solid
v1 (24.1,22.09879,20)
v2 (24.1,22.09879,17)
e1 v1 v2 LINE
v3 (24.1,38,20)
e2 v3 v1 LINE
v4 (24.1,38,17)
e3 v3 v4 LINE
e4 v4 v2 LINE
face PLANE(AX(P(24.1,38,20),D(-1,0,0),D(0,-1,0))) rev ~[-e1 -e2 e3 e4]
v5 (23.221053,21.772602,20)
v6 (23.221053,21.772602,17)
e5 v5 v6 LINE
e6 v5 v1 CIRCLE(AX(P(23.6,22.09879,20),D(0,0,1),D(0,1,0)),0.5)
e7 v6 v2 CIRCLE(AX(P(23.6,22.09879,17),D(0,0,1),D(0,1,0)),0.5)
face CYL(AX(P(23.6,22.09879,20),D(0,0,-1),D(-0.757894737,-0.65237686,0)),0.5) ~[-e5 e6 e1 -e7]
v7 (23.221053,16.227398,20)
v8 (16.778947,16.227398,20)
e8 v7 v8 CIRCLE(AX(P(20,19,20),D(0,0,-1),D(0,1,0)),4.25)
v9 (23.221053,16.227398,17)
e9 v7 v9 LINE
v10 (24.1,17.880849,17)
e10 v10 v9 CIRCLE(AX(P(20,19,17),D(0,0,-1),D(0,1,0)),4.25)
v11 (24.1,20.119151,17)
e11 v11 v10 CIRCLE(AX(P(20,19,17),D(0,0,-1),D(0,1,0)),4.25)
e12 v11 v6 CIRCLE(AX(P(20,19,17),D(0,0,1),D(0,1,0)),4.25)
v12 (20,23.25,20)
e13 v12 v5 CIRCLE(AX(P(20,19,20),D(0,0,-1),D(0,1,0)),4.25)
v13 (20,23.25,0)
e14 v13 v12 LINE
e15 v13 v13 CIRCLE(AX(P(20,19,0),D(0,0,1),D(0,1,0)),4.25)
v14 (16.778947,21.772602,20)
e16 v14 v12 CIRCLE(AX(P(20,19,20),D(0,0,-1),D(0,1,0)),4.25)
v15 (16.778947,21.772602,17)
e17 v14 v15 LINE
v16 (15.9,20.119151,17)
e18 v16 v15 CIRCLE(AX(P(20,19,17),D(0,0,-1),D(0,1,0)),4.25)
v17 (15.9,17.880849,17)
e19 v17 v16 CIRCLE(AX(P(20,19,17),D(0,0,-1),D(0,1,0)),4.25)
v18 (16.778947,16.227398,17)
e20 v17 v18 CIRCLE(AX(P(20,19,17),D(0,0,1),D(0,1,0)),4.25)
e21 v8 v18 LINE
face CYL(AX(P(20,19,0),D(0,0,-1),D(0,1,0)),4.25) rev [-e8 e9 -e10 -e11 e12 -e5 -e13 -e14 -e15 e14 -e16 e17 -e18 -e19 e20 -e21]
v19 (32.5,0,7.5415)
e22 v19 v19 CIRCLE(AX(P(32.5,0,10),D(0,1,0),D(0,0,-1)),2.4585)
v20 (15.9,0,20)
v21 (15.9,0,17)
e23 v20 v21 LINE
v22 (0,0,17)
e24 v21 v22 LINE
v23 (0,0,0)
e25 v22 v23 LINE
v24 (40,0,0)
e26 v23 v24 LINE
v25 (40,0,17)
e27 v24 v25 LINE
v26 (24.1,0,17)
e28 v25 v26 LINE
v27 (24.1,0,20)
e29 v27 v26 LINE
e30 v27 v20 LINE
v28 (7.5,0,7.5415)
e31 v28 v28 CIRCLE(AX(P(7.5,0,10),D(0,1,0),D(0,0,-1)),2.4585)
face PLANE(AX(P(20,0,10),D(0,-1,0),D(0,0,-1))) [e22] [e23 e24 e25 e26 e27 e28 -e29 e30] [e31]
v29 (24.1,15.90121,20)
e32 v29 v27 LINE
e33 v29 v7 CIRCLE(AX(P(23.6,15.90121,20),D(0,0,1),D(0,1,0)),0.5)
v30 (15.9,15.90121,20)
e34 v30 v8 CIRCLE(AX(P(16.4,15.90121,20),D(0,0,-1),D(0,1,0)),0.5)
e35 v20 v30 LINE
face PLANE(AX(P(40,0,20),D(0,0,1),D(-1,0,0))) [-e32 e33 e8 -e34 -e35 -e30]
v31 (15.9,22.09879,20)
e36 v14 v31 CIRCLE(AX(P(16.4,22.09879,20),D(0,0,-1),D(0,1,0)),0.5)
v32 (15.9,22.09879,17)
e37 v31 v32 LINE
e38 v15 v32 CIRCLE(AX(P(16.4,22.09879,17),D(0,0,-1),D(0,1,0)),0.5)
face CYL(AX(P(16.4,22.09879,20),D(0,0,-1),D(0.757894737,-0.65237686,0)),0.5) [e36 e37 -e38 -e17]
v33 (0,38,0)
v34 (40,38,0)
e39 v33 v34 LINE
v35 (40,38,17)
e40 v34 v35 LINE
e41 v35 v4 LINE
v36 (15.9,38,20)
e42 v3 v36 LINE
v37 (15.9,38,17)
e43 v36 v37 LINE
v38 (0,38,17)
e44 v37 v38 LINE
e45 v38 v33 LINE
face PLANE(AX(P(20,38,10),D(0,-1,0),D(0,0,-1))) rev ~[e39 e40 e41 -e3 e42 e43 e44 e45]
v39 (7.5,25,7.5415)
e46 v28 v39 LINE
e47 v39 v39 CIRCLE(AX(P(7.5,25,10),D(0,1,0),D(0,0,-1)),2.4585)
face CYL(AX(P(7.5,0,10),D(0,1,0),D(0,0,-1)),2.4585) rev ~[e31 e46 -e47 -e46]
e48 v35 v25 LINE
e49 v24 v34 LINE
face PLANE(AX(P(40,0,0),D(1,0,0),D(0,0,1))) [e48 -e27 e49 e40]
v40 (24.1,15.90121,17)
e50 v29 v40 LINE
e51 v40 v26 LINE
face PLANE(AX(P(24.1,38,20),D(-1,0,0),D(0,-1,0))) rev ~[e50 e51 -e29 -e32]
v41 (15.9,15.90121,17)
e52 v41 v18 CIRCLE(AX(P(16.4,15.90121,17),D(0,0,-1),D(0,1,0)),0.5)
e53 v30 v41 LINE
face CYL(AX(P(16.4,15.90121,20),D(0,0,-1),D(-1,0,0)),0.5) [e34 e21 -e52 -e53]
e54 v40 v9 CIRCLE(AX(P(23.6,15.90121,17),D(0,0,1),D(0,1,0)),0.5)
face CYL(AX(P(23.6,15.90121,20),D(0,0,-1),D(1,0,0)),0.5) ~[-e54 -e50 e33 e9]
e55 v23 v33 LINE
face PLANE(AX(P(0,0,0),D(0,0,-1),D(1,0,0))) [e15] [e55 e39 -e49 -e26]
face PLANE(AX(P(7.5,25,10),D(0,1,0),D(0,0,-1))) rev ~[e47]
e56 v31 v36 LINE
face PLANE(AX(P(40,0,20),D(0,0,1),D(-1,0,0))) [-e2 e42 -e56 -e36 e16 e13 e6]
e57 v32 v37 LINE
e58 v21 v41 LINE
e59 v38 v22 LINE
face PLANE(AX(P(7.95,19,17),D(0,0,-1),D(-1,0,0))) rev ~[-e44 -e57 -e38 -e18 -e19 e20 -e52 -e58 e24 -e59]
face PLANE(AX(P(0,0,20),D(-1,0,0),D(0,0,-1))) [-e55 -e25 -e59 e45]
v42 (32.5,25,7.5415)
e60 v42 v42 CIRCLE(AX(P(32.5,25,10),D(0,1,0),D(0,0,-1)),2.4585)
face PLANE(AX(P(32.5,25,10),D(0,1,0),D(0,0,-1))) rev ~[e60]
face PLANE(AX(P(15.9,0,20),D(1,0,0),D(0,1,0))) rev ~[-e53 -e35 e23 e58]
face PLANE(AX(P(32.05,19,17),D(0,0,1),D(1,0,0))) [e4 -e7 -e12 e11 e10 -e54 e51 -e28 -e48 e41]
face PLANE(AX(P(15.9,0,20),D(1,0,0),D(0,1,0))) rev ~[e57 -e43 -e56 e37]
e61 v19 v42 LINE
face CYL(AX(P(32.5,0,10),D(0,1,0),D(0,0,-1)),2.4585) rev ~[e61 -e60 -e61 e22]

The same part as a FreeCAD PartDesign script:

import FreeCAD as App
import Part
import Sketcher
Q = App.Units.Quantity


def edges_at(feature, points):
    """Names of the edges that pass closest to the given points."""
    edges = feature.Shape.Edges
    near = lambda p: min(range(len(edges)), key=lambda i: edges[i].distToShape(Part.Vertex(*p))[0])
    return sorted({f"Edge{near(p) + 1}" for p in points})

doc = App.newDocument("Part")
body = doc.addObject("PartDesign::Body", "Body")

# Sketch on XZ plane
sketch1 = body.newObject("Sketcher::SketchObject", "Sketch")
sketch1.AttachmentSupport = (doc.getObject("XZ_Plane"), [""])
sketch1.MapMode = "FlatFace"
sketch1.addGeometry(Part.LineSegment(App.Vector(0, 0, 0), App.Vector(40, 0, 0)), False)
sketch1.addGeometry(Part.LineSegment(App.Vector(40, 0, 0), App.Vector(40, 20, 0)), False)
sketch1.addGeometry(Part.LineSegment(App.Vector(40, 20, 0), App.Vector(0, 20, 0)), False)
sketch1.addGeometry(Part.LineSegment(App.Vector(0, 20, 0), App.Vector(0, 0, 0)), False)
sketch1.addConstraint(Sketcher.Constraint("Coincident", 0, 2, 1, 1))
sketch1.addConstraint(Sketcher.Constraint("Coincident", 1, 2, 2, 1))
sketch1.addConstraint(Sketcher.Constraint("Coincident", 2, 2, 3, 1))
sketch1.addConstraint(Sketcher.Constraint("Coincident", 3, 2, 0, 1))
sketch1.addConstraint(Sketcher.Constraint("Horizontal", 0))
sketch1.addConstraint(Sketcher.Constraint("Vertical", 1))
sketch1.addConstraint(Sketcher.Constraint("Horizontal", 2))
sketch1.addConstraint(Sketcher.Constraint("Vertical", 3))
sketch1.addConstraint(Sketcher.Constraint("Coincident", 3, 2, -1, 1))
sketch1.addConstraint(Sketcher.Constraint("DistanceX", 0, 1, 0, 2, Q("40 mm")))
sketch1.addConstraint(Sketcher.Constraint("DistanceY", 1, 1, 1, 2, Q("20 mm")))
pad1 = body.newObject("PartDesign::Pad", "Pad")
pad1.Profile = sketch1
pad1.Length = 38
pad1.Reversed = True

# Sketch on XZ plane
sketch2 = body.newObject("Sketcher::SketchObject", "Sketch001")
sketch2.AttachmentSupport = (doc.getObject("XZ_Plane"), [""])
sketch2.MapMode = "FlatFace"
sketch2.addGeometry(Part.Circle(App.Vector(7.5, 10, 0), App.Vector(0, 0, 1), 2.5), False)
sketch2.addConstraint(Sketcher.Constraint("Diameter", 0, Q("4.917 mm")))
sketch2.addConstraint(Sketcher.Constraint("DistanceY", -1, 1, 0, 3, Q("10 mm")))
sketch2.addConstraint(Sketcher.Constraint("DistanceX", -1, 1, 0, 3, Q("7.5 mm")))
doc.recompute()
hole = body.newObject("PartDesign::Hole", "Hole")
hole.Profile = sketch2
hole.ThreadType = "None"
hole.Diameter = 4.917
hole.DepthType = "Dimension"
hole.Depth = 25
hole.DrillPoint = "Flat"

# Sketch on XZ plane
sketch3 = body.newObject("Sketcher::SketchObject", "Sketch002")
sketch3.AttachmentSupport = (doc.getObject("XZ_Plane"), [""])
sketch3.MapMode = "FlatFace"
sketch3.addGeometry(Part.Circle(App.Vector(32.5, 10, 0), App.Vector(0, 0, 1), 2.5), False)
sketch3.addConstraint(Sketcher.Constraint("Diameter", 0, Q("4.917 mm")))
sketch3.addConstraint(Sketcher.Constraint("DistanceY", -1, 1, 0, 3, Q("10 mm")))
sketch3.addConstraint(Sketcher.Constraint("DistanceX", -1, 1, 0, 3, Q("32.5 mm")))
doc.recompute()
hole2 = body.newObject("PartDesign::Hole", "Hole001")
hole2.Profile = sketch3
hole2.ThreadType = "None"
hole2.Diameter = 4.917
hole2.DepthType = "Dimension"
hole2.Depth = 25
hole2.DrillPoint = "Flat"

# Sketch on XY plane
sketch4 = body.newObject("Sketcher::SketchObject", "Sketch003")
sketch4.AttachmentSupport = (doc.getObject("XY_Plane"), [""])
sketch4.MapMode = "FlatFace"
sketch4.AttachmentOffset = App.Placement(App.Vector(0, 0, 20), App.Rotation())
sketch4.addGeometry(Part.LineSegment(App.Vector(0, 0, 0), App.Vector(16, 0, 0)), False)
sketch4.addGeometry(Part.LineSegment(App.Vector(16, 0, 0), App.Vector(16, 38, 0)), False)
sketch4.addGeometry(Part.LineSegment(App.Vector(16, 38, 0), App.Vector(0, 38, 0)), False)
sketch4.addGeometry(Part.LineSegment(App.Vector(0, 38, 0), App.Vector(0, 0, 0)), False)
sketch4.addGeometry(Part.LineSegment(App.Vector(40, 0, 0), App.Vector(40, 38, 0)), False)
sketch4.addGeometry(Part.LineSegment(App.Vector(40, 38, 0), App.Vector(24, 38, 0)), False)
sketch4.addGeometry(Part.LineSegment(App.Vector(24, 38, 0), App.Vector(24, 0, 0)), False)
sketch4.addGeometry(Part.LineSegment(App.Vector(24, 0, 0), App.Vector(40, 0, 0)), False)
sketch4.addConstraint(Sketcher.Constraint("Coincident", 0, 2, 1, 1))
sketch4.addConstraint(Sketcher.Constraint("Coincident", 1, 2, 2, 1))
sketch4.addConstraint(Sketcher.Constraint("Coincident", 2, 2, 3, 1))
sketch4.addConstraint(Sketcher.Constraint("Coincident", 3, 2, 0, 1))
sketch4.addConstraint(Sketcher.Constraint("Coincident", 4, 2, 5, 1))
sketch4.addConstraint(Sketcher.Constraint("Coincident", 5, 2, 6, 1))
sketch4.addConstraint(Sketcher.Constraint("Coincident", 6, 2, 7, 1))
sketch4.addConstraint(Sketcher.Constraint("Coincident", 7, 2, 4, 1))
sketch4.addConstraint(Sketcher.Constraint("Horizontal", 0))
sketch4.addConstraint(Sketcher.Constraint("Vertical", 1))
sketch4.addConstraint(Sketcher.Constraint("Horizontal", 2))
sketch4.addConstraint(Sketcher.Constraint("Vertical", 3))
sketch4.addConstraint(Sketcher.Constraint("Vertical", 4))
sketch4.addConstraint(Sketcher.Constraint("Horizontal", 5))
sketch4.addConstraint(Sketcher.Constraint("Vertical", 6))
sketch4.addConstraint(Sketcher.Constraint("Horizontal", 7))
sketch4.addConstraint(Sketcher.Constraint("Coincident", 3, 2, -1, 1))
sketch4.addConstraint(Sketcher.Constraint("PointOnObject", 6, 2, -1))
sketch4.addConstraint(Sketcher.Constraint("Horizontal", 2, 2, 4, 2))
sketch4.addConstraint(Sketcher.Constraint("Equal", 2, 5))
sketch4.addConstraint(Sketcher.Constraint("DistanceY", 1, 1, 1, 2, Q("38 mm")))
sketch4.addConstraint(Sketcher.Constraint("DistanceX", 0, 1, 0, 2, Q("15.9 mm")))
sketch4.addConstraint(Sketcher.Constraint("DistanceX", -1, 1, 4, 2, Q("40 mm")))
pocket1 = body.newObject("PartDesign::Pocket", "Pocket")
pocket1.Profile = sketch4
pocket1.Length = 3

# Sketch on XY plane
sketch5 = body.newObject("Sketcher::SketchObject", "Sketch004")
sketch5.AttachmentSupport = (doc.getObject("XY_Plane"), [""])
sketch5.MapMode = "FlatFace"
sketch5.addGeometry(Part.Circle(App.Vector(20, 19, 0), App.Vector(0, 0, 1), 4.2), False)
sketch5.addConstraint(Sketcher.Constraint("Diameter", 0, Q("8.5 mm")))
sketch5.addConstraint(Sketcher.Constraint("DistanceX", -1, 1, 0, 3, Q("20 mm")))
sketch5.addConstraint(Sketcher.Constraint("DistanceY", -1, 1, 0, 3, Q("19 mm")))
doc.recompute()
hole3 = body.newObject("PartDesign::Hole", "Hole002")
hole3.Profile = sketch5
hole3.ThreadType = "None"
hole3.Diameter = 8.5
hole3.DepthType = "ThroughAll"
hole3.Reversed = True
doc.recompute()

fillet = body.newObject("PartDesign::Fillet", "Fillet")
fillet.Base = (hole3, edges_at(hole3, [
    (24.1, 17.881, 18.5),
    (15.9, 17.881, 18.5),
    (15.9, 20.119, 18.5),
    (24.1, 20.119, 18.5),
]))
fillet.Radius = 0.5

doc.recompute()
